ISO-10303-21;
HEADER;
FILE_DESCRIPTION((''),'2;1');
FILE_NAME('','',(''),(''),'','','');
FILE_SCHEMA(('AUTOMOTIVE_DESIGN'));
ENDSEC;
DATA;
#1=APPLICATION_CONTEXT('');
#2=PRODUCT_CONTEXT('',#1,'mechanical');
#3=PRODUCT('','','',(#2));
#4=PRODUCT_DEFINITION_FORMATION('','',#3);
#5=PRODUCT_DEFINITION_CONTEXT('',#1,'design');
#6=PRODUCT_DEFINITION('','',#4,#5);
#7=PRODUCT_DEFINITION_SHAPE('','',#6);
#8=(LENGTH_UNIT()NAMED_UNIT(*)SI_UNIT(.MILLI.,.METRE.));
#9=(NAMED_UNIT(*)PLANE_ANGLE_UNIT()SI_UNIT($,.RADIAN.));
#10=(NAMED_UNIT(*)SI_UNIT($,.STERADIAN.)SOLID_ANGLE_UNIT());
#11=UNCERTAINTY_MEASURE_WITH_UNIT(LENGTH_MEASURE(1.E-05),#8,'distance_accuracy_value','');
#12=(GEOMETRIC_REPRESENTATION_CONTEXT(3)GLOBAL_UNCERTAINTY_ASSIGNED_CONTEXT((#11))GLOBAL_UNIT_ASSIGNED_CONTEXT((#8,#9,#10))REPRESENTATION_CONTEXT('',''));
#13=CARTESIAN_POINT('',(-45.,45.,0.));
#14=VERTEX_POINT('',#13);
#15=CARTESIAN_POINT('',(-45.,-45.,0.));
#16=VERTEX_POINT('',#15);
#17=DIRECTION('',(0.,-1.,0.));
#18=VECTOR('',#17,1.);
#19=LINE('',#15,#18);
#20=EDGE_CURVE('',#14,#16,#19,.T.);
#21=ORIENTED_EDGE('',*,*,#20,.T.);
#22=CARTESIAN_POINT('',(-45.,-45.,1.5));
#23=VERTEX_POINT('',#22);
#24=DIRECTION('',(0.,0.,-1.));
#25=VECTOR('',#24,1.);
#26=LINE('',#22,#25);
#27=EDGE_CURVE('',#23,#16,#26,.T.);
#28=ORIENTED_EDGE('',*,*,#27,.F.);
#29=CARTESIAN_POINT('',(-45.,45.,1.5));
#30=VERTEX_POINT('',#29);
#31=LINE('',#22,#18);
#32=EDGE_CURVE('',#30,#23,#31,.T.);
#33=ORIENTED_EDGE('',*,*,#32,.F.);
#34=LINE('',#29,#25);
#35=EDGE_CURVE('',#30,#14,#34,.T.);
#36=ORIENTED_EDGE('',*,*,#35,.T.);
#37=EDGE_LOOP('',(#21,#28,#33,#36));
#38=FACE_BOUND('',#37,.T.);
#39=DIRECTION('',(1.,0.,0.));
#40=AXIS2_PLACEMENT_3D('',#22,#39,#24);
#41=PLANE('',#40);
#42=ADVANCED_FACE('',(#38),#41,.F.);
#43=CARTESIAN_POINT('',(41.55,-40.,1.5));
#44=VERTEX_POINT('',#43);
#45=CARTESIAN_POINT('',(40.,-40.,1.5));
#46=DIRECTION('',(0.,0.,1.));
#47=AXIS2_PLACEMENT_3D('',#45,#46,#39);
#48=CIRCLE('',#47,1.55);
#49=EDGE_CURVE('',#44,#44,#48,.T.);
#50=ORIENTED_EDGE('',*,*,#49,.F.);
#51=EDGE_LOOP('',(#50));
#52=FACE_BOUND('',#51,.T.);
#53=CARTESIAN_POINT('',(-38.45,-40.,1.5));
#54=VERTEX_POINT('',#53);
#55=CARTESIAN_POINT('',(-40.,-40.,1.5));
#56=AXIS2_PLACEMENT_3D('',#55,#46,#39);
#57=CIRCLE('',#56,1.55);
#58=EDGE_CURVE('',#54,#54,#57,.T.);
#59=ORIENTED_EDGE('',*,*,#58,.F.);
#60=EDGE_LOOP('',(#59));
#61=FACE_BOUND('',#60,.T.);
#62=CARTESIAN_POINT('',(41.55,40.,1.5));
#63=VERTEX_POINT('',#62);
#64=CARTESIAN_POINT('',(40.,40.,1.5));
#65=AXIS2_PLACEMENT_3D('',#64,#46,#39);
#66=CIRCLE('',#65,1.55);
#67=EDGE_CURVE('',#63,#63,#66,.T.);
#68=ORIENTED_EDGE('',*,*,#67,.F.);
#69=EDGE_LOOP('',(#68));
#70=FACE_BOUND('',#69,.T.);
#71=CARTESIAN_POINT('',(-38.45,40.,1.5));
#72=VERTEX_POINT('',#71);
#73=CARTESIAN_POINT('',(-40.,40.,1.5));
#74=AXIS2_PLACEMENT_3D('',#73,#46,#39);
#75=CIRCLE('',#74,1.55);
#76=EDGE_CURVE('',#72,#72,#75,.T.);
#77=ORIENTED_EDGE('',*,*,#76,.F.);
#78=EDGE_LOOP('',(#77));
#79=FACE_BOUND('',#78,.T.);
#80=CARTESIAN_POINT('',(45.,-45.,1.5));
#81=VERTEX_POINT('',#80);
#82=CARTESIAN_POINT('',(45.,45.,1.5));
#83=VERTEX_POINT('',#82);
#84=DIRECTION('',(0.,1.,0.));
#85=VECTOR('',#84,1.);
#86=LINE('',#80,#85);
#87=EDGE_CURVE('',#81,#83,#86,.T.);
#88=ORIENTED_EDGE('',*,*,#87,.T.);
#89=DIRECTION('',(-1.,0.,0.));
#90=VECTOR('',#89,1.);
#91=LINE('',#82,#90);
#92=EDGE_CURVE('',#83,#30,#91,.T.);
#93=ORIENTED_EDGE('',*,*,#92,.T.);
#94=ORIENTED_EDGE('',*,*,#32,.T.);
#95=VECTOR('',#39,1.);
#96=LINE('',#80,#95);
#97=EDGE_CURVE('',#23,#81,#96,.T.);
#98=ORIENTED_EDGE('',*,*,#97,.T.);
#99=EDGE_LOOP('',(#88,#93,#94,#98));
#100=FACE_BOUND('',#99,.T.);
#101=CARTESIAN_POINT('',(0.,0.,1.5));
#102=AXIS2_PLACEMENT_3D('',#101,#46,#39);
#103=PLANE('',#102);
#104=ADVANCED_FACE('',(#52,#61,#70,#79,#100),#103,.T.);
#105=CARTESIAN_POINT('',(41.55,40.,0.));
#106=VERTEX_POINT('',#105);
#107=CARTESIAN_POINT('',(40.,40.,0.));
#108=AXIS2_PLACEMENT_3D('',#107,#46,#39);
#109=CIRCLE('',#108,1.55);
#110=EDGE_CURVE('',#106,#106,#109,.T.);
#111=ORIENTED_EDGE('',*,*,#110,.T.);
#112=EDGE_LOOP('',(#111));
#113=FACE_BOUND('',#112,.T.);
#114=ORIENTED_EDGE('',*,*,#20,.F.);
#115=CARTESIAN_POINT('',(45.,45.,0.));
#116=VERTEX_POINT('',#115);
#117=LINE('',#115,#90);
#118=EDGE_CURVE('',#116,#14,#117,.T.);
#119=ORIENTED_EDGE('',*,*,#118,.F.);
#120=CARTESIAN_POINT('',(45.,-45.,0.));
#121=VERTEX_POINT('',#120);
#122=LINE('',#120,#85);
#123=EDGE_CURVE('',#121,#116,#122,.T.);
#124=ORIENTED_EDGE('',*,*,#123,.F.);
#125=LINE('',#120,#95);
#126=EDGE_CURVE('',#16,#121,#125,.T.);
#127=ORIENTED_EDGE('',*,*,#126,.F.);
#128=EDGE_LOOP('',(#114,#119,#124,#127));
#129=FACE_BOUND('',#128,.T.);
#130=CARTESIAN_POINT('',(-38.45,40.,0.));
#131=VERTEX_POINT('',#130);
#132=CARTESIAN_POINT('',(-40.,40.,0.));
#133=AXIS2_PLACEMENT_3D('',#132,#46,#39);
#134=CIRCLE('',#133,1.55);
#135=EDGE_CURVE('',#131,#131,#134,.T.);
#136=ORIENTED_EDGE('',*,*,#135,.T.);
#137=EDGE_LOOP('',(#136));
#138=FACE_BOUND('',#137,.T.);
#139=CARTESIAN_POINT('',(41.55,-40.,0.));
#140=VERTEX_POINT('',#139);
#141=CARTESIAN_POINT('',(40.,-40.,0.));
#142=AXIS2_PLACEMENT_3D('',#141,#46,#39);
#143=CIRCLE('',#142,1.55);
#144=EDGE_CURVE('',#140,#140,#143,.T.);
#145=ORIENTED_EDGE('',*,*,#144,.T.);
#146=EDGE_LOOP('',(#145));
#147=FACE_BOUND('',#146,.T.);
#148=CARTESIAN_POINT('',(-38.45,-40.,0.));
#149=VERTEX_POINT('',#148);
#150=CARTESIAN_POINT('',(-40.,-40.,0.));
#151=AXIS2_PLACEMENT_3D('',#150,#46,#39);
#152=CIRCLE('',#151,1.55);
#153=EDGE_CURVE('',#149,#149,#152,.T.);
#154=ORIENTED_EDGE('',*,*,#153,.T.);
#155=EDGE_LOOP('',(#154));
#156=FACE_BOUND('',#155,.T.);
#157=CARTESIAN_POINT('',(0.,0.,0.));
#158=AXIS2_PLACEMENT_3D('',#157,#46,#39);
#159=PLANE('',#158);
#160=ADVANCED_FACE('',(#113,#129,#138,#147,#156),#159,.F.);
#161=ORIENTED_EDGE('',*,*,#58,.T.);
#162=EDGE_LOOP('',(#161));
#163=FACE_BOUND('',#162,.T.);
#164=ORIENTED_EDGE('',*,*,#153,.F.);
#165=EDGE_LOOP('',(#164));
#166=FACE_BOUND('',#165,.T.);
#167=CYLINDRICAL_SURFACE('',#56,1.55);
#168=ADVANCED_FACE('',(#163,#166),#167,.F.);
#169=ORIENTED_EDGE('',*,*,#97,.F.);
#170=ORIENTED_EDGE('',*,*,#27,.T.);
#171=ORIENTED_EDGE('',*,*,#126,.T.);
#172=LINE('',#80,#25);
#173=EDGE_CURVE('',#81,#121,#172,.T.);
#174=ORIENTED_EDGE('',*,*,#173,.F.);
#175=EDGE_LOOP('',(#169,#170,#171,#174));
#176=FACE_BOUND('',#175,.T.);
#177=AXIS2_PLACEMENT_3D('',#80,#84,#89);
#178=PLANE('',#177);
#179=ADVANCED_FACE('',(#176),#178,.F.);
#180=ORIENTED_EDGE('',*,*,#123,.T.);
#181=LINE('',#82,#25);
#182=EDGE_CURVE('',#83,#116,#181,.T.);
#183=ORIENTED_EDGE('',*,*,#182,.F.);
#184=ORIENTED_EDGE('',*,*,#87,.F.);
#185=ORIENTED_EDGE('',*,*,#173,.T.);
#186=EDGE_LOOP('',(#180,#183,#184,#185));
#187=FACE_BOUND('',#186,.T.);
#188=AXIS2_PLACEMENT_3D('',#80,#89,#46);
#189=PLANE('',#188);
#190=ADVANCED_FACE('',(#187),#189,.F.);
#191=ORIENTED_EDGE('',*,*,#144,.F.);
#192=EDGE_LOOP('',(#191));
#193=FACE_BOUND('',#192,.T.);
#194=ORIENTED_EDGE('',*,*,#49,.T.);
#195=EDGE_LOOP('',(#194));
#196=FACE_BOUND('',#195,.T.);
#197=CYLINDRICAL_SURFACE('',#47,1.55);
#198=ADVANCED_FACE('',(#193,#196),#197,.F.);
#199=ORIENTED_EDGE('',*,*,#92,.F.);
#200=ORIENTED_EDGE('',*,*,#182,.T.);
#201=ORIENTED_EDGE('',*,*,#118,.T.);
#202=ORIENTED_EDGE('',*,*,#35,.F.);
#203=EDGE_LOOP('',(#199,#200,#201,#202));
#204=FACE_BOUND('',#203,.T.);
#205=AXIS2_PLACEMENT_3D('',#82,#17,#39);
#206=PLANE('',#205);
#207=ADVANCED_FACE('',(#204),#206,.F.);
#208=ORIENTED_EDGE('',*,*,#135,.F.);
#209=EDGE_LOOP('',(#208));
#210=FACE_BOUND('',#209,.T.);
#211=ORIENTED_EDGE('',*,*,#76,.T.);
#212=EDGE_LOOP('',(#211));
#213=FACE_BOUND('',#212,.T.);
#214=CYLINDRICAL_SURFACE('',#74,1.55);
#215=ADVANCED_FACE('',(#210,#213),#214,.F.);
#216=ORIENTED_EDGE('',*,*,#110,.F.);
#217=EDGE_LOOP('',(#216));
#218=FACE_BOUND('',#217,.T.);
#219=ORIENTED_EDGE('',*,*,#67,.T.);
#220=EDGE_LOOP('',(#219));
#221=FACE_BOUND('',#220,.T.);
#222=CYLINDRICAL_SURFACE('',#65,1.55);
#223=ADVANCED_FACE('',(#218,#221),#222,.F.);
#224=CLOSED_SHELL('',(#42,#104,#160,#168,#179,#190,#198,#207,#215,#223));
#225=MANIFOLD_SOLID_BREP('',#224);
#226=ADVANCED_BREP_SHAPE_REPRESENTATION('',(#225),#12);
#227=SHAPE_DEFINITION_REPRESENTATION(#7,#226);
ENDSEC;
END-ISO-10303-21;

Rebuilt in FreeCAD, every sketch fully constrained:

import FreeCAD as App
import Part
import Sketcher

V = App.Vector


def add_polygon(sketch, points):
    """Adds a closed chain of lines whose ends are joined by coincident constraints."""
    first, n = sketch.GeometryCount, len(points)
    for a, b in zip(points, points[1:] + points[:1]):
        sketch.addGeometry(Part.LineSegment(App.Vector(*a, 0), App.Vector(*b, 0)), False)
    for i in range(n):
        sketch.addConstraint(Sketcher.Constraint("Coincident", first + i, 2, first + (i + 1) % n, 1))

doc = App.newDocument("Part")
body = doc.addObject("PartDesign::Body", "Body")

sketch1 = doc.addObject("Sketcher::SketchObject", "Sketch")
body.addObject(sketch1)
sketch1.AttachmentSupport = (doc.XY_Plane, [""])
sketch1.MapMode = "FlatFace"
add_polygon(sketch1, [(-45, 45), (-45, -45), (45, -45), (45, 45)])
sketch1.addConstraint([
    Sketcher.Constraint("Vertical", 0),
    Sketcher.Constraint("Horizontal", 1),
    Sketcher.Constraint("Vertical", 2),
    Sketcher.Constraint("Horizontal", 3),
    Sketcher.Constraint("Symmetric", 0, 2, 2, 2, -1, 1),
    Sketcher.Constraint("Equal", 3, 0),
    Sketcher.Constraint("DistanceX", 1, 1, 1, 2, 90.0),
])
pad1 = doc.addObject("PartDesign::Pad", "Pad")
body.addObject(pad1)
pad1.Profile = sketch1
pad1.Length = 1.5

sketch2 = doc.addObject("Sketcher::SketchObject", "Sketch001")
body.addObject(sketch2)
sketch2.AttachmentSupport = (doc.XY_Plane, [""])
sketch2.MapMode = "FlatFace"
sketch2.AttachmentOffset = App.Placement(V(0, 0, 1.5), App.Rotation())
sketch2.addGeometry([
    Part.Circle(V(-40, 40, 0), V(0, 0, 1), 1.6),
    Part.Circle(V(40, 40, 0), V(0, 0, 1), 1.6),
    Part.Circle(V(40, -40, 0), V(0, 0, 1), 1.6),
    Part.Circle(V(-40, -40, 0), V(0, 0, 1), 1.6),
], False)
sketch2.addConstraint([
    Sketcher.Constraint("Equal", 0, 1),
    Sketcher.Constraint("Equal", 1, 2),
    Sketcher.Constraint("Equal", 2, 3),
    Sketcher.Constraint("Symmetric", 0, 3, 2, 3, -1, 1),
    Sketcher.Constraint("Symmetric", 1, 3, 3, 3, -1, 1),
    Sketcher.Constraint("Symmetric", 0, 3, 1, 3, -2),
    Sketcher.Constraint("Diameter", 0, 3.1),
    Sketcher.Constraint("DistanceX", 0, 3, -1, 1, 40.0),
    Sketcher.Constraint("DistanceY", -1, 1, 0, 3, 40.0),
])
doc.recompute()
hole = doc.addObject("PartDesign::Hole", "Hole")
body.addObject(hole)
hole.Profile = sketch2
hole.ThreadType = "None"
hole.Diameter = 3.1
hole.DepthType = "ThroughAll"

doc.recompute()
